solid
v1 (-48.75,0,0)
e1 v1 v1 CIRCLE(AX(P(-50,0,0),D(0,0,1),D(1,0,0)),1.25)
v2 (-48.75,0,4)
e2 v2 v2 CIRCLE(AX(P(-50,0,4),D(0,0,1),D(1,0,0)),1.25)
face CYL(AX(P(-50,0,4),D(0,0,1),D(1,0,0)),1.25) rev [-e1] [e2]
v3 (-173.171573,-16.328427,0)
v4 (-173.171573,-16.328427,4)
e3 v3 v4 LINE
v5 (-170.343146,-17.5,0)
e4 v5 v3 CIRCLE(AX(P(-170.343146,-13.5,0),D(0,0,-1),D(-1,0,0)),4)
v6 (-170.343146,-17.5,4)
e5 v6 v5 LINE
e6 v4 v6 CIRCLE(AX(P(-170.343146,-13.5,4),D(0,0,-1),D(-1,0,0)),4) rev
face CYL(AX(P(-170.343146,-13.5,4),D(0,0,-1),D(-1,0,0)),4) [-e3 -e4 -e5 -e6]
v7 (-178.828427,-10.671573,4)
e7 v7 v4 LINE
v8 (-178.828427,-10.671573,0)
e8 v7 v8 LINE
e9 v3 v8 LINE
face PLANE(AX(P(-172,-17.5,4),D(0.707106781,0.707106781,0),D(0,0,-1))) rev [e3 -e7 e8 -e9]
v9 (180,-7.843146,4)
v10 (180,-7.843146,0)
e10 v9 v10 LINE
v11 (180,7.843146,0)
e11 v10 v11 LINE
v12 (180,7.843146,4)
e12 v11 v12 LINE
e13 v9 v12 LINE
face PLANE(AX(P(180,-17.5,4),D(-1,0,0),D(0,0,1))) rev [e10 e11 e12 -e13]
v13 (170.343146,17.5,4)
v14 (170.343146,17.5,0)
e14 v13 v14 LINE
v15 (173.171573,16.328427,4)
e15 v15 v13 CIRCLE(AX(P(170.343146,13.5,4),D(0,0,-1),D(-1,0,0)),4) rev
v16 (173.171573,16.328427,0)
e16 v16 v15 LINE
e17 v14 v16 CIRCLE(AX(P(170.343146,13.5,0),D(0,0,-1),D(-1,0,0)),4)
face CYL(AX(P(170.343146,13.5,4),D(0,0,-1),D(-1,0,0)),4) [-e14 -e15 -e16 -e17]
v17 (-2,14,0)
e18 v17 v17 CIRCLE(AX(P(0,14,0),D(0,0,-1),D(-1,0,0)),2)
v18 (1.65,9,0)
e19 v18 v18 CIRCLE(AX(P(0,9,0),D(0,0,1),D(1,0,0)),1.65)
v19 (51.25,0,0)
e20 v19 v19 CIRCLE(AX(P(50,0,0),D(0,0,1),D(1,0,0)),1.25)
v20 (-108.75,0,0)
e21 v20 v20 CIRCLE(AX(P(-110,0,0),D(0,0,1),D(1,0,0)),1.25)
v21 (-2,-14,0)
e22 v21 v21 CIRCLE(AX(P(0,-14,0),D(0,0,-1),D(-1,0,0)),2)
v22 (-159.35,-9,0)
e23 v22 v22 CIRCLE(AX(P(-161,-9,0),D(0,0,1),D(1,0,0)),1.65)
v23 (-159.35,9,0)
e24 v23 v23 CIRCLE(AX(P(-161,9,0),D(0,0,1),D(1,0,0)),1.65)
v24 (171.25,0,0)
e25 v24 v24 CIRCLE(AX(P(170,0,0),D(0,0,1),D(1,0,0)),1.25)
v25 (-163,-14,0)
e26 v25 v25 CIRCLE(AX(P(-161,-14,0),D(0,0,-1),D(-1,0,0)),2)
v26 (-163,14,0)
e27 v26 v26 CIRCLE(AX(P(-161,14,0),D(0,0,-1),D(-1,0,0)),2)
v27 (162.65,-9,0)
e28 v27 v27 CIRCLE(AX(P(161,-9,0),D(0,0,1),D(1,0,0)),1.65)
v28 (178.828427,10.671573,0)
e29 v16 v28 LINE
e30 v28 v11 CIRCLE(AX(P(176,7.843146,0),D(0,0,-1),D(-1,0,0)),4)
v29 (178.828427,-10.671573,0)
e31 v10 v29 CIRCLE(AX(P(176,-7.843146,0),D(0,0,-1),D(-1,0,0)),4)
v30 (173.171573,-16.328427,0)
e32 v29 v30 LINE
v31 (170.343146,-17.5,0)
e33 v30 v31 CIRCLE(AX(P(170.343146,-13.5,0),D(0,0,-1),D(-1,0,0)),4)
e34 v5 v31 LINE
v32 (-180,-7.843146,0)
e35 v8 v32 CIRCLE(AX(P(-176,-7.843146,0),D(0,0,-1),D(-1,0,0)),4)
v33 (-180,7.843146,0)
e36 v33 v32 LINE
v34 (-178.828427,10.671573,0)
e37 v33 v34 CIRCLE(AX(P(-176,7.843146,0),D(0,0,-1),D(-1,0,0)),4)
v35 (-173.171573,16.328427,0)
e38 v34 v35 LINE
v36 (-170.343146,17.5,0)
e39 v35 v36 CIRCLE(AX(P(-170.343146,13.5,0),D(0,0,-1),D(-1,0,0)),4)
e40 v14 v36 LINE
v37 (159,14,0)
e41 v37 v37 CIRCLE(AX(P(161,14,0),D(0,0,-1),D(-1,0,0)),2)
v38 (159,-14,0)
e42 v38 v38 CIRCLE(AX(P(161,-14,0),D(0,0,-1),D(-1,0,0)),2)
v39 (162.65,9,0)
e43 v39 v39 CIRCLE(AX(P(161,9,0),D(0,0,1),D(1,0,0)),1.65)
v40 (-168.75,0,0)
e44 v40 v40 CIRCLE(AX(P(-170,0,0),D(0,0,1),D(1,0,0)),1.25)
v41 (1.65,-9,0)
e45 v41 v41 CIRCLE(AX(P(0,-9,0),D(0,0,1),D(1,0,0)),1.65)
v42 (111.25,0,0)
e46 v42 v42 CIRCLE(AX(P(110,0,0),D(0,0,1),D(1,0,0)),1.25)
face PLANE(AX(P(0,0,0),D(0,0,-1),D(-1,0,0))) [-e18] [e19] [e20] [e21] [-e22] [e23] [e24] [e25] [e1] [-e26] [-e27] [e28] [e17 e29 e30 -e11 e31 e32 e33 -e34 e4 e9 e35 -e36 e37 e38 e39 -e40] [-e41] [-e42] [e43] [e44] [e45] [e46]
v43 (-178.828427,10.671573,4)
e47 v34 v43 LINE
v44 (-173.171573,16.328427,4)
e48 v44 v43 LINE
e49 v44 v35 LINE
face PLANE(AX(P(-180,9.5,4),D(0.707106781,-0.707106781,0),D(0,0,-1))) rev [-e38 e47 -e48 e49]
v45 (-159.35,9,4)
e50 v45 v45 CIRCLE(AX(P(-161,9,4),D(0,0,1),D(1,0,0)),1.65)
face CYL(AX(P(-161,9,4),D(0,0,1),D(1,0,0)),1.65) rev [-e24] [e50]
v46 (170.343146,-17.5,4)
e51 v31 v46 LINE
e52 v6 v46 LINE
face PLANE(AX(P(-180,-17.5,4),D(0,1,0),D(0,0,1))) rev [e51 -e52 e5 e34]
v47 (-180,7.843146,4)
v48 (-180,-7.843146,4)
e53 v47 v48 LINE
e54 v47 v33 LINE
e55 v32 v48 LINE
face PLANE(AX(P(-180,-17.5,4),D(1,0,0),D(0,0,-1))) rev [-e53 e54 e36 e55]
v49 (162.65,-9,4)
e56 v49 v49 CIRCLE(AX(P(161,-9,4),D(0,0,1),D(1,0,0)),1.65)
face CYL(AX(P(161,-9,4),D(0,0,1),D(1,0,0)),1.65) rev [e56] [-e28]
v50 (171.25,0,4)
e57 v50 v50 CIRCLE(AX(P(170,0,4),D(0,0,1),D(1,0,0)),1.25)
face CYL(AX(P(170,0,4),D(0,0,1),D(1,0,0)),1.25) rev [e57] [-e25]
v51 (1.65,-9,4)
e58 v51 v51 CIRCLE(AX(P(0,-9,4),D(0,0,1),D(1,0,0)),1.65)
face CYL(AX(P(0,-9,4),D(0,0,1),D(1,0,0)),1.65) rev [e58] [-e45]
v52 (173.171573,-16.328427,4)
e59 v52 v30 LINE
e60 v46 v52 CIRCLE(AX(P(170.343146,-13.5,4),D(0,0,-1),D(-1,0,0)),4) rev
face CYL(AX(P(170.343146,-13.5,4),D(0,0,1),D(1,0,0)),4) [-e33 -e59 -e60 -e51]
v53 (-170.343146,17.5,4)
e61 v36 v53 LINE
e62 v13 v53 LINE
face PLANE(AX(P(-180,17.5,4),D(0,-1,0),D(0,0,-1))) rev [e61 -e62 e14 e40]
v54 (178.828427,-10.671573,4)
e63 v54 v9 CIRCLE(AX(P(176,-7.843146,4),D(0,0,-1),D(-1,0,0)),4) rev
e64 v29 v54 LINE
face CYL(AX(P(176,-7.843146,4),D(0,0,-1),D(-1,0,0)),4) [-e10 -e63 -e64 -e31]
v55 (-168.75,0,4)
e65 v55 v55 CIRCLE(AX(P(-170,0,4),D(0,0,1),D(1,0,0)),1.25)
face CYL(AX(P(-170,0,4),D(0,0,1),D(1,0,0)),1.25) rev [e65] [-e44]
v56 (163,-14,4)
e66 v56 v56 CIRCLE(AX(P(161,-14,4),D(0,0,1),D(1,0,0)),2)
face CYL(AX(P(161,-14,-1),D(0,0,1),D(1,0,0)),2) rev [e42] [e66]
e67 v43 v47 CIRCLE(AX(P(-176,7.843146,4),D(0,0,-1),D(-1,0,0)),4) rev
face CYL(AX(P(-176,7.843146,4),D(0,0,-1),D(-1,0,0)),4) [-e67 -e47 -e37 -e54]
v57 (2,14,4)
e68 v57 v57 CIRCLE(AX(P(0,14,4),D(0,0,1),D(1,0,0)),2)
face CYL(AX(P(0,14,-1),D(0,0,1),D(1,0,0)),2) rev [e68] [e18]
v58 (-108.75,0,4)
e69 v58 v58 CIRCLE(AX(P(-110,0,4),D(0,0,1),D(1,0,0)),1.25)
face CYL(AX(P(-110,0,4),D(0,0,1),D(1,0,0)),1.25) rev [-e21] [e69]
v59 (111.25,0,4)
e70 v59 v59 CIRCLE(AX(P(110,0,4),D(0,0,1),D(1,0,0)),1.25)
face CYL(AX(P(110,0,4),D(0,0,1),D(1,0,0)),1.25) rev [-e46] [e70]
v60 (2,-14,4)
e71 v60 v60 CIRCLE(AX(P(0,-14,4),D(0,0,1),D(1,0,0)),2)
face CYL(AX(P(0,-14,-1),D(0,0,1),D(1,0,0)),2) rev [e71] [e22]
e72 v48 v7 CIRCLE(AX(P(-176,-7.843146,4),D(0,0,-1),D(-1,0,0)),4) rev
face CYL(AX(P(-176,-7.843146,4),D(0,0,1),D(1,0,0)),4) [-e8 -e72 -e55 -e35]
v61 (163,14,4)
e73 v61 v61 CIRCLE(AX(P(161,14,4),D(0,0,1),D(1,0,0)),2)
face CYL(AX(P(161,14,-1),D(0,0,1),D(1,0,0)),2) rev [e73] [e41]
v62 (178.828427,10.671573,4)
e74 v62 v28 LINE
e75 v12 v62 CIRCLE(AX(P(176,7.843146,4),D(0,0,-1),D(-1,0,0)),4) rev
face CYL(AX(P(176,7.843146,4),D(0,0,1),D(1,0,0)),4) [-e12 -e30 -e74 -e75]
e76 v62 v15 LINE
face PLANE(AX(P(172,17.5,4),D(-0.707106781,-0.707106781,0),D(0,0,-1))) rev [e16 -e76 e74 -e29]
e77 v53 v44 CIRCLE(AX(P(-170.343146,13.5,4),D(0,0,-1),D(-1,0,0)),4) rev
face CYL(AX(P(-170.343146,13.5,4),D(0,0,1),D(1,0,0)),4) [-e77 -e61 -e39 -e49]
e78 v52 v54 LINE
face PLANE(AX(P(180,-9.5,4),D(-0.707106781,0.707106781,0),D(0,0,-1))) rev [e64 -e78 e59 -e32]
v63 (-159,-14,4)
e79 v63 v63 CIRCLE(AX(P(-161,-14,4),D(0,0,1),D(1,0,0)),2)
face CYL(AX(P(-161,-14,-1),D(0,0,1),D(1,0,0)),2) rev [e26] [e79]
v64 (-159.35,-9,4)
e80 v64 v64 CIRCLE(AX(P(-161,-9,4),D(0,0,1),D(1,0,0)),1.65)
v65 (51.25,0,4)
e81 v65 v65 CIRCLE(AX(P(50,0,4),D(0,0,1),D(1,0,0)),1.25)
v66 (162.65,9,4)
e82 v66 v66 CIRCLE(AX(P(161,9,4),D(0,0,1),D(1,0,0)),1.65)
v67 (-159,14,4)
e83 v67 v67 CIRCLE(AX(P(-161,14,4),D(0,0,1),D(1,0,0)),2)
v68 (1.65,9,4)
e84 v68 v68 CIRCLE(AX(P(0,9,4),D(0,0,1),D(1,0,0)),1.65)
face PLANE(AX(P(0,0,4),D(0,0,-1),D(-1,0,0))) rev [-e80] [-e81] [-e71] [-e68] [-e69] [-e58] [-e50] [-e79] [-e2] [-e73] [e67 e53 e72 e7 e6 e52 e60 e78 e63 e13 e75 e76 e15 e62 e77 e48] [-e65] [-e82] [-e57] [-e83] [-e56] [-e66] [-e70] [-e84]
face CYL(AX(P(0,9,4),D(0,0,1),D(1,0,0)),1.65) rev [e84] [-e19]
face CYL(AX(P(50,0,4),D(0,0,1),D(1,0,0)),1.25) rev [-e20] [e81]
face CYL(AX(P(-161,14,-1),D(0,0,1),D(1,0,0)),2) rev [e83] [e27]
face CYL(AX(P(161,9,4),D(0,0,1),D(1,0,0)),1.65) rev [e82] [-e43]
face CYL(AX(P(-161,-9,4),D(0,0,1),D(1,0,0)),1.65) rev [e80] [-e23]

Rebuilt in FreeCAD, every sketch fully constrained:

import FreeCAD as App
import Part
import Sketcher


def edges_at(feature, points):
    """Names of the edges that pass closest to the given points."""
    edges = feature.Shape.Edges
    near = lambda p: min(range(len(edges)), key=lambda i: edges[i].distToShape(Part.Vertex(*p))[0])
    return sorted({f"Edge{near(p) + 1}" for p in points})


def add_polygon(sketch, points):
    """Adds a closed chain of lines whose ends are joined by coincident constraints."""
    first, n = sketch.GeometryCount, len(points)
    for a, b in zip(points, points[1:] + points[:1]):
        sketch.addGeometry(Part.LineSegment(App.Vector(*a, 0), App.Vector(*b, 0)), False)
    for i in range(n):
        sketch.addConstraint(Sketcher.Constraint("Coincident", first + i, 2, first + (i + 1) % n, 1))

doc = App.newDocument("Part")
body = doc.addObject("PartDesign::Body", "Body")

# Sketch on XY plane
sketch1 = body.newObject("Sketcher::SketchObject", "Sketch")
sketch1.AttachmentSupport = (doc.getObject("XY_Plane"), [""])
sketch1.MapMode = "FlatFace"
add_polygon(sketch1, [(-180, 18), (-180, -18), (180, -18), (180, 18)])  # lines 0-3
sketch1.addConstraint([
    Sketcher.Constraint("Vertical", 0),
    Sketcher.Constraint("Horizontal", 1),
    Sketcher.Constraint("Vertical", 2),
    Sketcher.Constraint("Horizontal", 3),
    Sketcher.Constraint("Symmetric", 0, 2, 2, 2, -1, 1),
    Sketcher.Constraint("DistanceX", 1, 1, 1, 2, 360.0),
    Sketcher.Constraint("DistanceY", 0, 2, 0, 1, 35.0),
])
pad1 = body.newObject("PartDesign::Pad", "Pad")
pad1.Profile = sketch1
pad1.Length = 4

# Sketch on XY plane
sketch2 = body.newObject("Sketcher::SketchObject", "Sketch001")
sketch2.AttachmentSupport = (doc.getObject("XY_Plane"), [""])
sketch2.MapMode = "FlatFace"
sketch2.AttachmentOffset = App.Placement(App.Vector(0, 0, 4), App.Rotation())
sketch2.addGeometry([
    Part.Circle(App.Vector(0, 14, 0), App.Vector(0, 0, 1), 2),  # 0
    Part.Circle(App.Vector(0, -14, 0), App.Vector(0, 0, 1), 2),  # 1
    Part.Circle(App.Vector(161, 14, 0), App.Vector(0, 0, 1), 2),  # 2
    Part.Circle(App.Vector(161, -14, 0), App.Vector(0, 0, 1), 2),  # 3
    Part.Circle(App.Vector(-161, 14, 0), App.Vector(0, 0, 1), 2),  # 4
    Part.Circle(App.Vector(-161, -14, 0), App.Vector(0, 0, 1), 2),  # 5
], False)
sketch2.addConstraint([
    Sketcher.Constraint("Equal", 0, 1),
    Sketcher.Constraint("Equal", 1, 2),
    Sketcher.Constraint("Equal", 2, 3),
    Sketcher.Constraint("Equal", 3, 4),
    Sketcher.Constraint("Equal", 4, 5),
    Sketcher.Constraint("Symmetric", 0, 3, 1, 3, -1, 1),
    Sketcher.Constraint("Symmetric", 3, 3, 4, 3, -1, 1),
    Sketcher.Constraint("Symmetric", 2, 3, 5, 3, -1, 1),
    Sketcher.Constraint("Symmetric", 2, 3, 4, 3, -2),
    Sketcher.Constraint("PointOnObject", 0, 3, -2),
    Sketcher.Constraint("Horizontal", 0, 3, 2, 3),
    Sketcher.Constraint("Diameter", 0, 4.0),
    Sketcher.Constraint("DistanceY", -1, 1, 0, 3, 14.0),
    Sketcher.Constraint("DistanceX", -1, 1, 2, 3, 161.0),
])
pocket1 = body.newObject("PartDesign::Pocket", "Pocket")
pocket1.Profile = sketch2
pocket1.Length = 5

# Sketch on XY plane
sketch3 = body.newObject("Sketcher::SketchObject", "Sketch002")
sketch3.AttachmentSupport = (doc.getObject("XY_Plane"), [""])
sketch3.MapMode = "FlatFace"
sketch3.AttachmentOffset = App.Placement(App.Vector(0, 0, 4), App.Rotation())
sketch3.addGeometry([
    Part.Circle(App.Vector(-161, 9, 0), App.Vector(0, 0, 1), 1.6),  # 0
    Part.Circle(App.Vector(-161, -9, 0), App.Vector(0, 0, 1), 1.6),  # 1
    Part.Circle(App.Vector(0, 9, 0), App.Vector(0, 0, 1), 1.6),  # 2
    Part.Circle(App.Vector(0, -9, 0), App.Vector(0, 0, 1), 1.6),  # 3
    Part.Circle(App.Vector(161, 9, 0), App.Vector(0, 0, 1), 1.6),  # 4
    Part.Circle(App.Vector(161, -9, 0), App.Vector(0, 0, 1), 1.6),  # 5
], False)
sketch3.addConstraint([
    Sketcher.Constraint("Equal", 0, 1),
    Sketcher.Constraint("Equal", 1, 2),
    Sketcher.Constraint("Equal", 2, 3),
    Sketcher.Constraint("Equal", 3, 4),
    Sketcher.Constraint("Equal", 4, 5),
    Sketcher.Constraint("Symmetric", 2, 3, 3, 3, -1, 1),
    Sketcher.Constraint("Symmetric", 1, 3, 4, 3, -1, 1),
    Sketcher.Constraint("Symmetric", 0, 3, 5, 3, -1, 1),
    Sketcher.Constraint("Symmetric", 0, 3, 4, 3, -2),
    Sketcher.Constraint("PointOnObject", 2, 3, -2),
    Sketcher.Constraint("Horizontal", 0, 3, 2, 3),
    Sketcher.Constraint("Diameter", 0, 3.3),
    Sketcher.Constraint("DistanceX", 0, 3, -1, 1, 161.0),
    Sketcher.Constraint("DistanceY", -1, 1, 0, 3, 9.0),
])
doc.recompute()
hole = body.newObject("PartDesign::Hole", "Hole")
hole.Profile = sketch3
hole.ThreadType = "None"
hole.Diameter = 3.3
hole.DepthType = "ThroughAll"

# Sketch on XY plane
sketch4 = body.newObject("Sketcher::SketchObject", "Sketch003")
sketch4.AttachmentSupport = (doc.getObject("XY_Plane"), [""])
sketch4.MapMode = "FlatFace"
sketch4.AttachmentOffset = App.Placement(App.Vector(0, 0, 4), App.Rotation())
sketch4.addGeometry([
    Part.Circle(App.Vector(-170, 0, 0), App.Vector(0, 0, 1), 1.2),  # 0
    Part.Circle(App.Vector(-110, 0, 0), App.Vector(0, 0, 1), 1.2),  # 1
    Part.Circle(App.Vector(-50, 0, 0), App.Vector(0, 0, 1), 1.2),  # 2
    Part.Circle(App.Vector(50, 0, 0), App.Vector(0, 0, 1), 1.2),  # 3
    Part.Circle(App.Vector(110, 0, 0), App.Vector(0, 0, 1), 1.2),  # 4
    Part.Circle(App.Vector(170, 0, 0), App.Vector(0, 0, 1), 1.2),  # 5
], False)
sketch4.addConstraint([
    Sketcher.Constraint("Equal", 0, 1),
    Sketcher.Constraint("Equal", 1, 2),
    Sketcher.Constraint("Equal", 2, 3),
    Sketcher.Constraint("Equal", 3, 4),
    Sketcher.Constraint("Equal", 4, 5),
    Sketcher.Constraint("Symmetric", 2, 3, 3, 3, -1, 1),
    Sketcher.Constraint("Symmetric", 1, 3, 4, 3, -1, 1),
    Sketcher.Constraint("Symmetric", 0, 3, 5, 3, -1, 1),
    Sketcher.Constraint("PointOnObject", 0, 3, -1),
    Sketcher.Constraint("PointOnObject", 1, 3, -1),
    Sketcher.Constraint("PointOnObject", 2, 3, -1),
    Sketcher.Constraint("Diameter", 0, 2.5),
    Sketcher.Constraint("DistanceX", 0, 3, -1, 1, 170.0),
    Sketcher.Constraint("DistanceX", 1, 3, -1, 1, 110.0),
    Sketcher.Constraint("DistanceX", 2, 3, -1, 1, 50.0),
])
doc.recompute()
hole2 = body.newObject("PartDesign::Hole", "Hole001")
hole2.Profile = sketch4
hole2.ThreadType = "None"
hole2.Diameter = 2.5
hole2.DepthType = "ThroughAll"
doc.recompute()

chamfer = body.newObject("PartDesign::Chamfer", "Chamfer")
chamfer.Base = (hole2, edges_at(hole2, [
    (180, -17.5, 2),
    (-180, -17.5, 2),
    (-180, 17.5, 2),
    (180, 17.5, 2),
]))
chamfer.Size = 8
doc.recompute()

fillet = body.newObject("PartDesign::Fillet", "Fillet")
fillet.Base = (chamfer, edges_at(chamfer, [
    (180, 9.5, 2),
    (180, -9.5, 2),
    (-172, -17.5, 2),
    (172, -17.5, 2),
    (-172, 17.5, 2),
    (172, 17.5, 2),
    (-180, 9.5, 2),
    (-180, -9.5, 2),
]))
fillet.Radius = 4

doc.recompute()
